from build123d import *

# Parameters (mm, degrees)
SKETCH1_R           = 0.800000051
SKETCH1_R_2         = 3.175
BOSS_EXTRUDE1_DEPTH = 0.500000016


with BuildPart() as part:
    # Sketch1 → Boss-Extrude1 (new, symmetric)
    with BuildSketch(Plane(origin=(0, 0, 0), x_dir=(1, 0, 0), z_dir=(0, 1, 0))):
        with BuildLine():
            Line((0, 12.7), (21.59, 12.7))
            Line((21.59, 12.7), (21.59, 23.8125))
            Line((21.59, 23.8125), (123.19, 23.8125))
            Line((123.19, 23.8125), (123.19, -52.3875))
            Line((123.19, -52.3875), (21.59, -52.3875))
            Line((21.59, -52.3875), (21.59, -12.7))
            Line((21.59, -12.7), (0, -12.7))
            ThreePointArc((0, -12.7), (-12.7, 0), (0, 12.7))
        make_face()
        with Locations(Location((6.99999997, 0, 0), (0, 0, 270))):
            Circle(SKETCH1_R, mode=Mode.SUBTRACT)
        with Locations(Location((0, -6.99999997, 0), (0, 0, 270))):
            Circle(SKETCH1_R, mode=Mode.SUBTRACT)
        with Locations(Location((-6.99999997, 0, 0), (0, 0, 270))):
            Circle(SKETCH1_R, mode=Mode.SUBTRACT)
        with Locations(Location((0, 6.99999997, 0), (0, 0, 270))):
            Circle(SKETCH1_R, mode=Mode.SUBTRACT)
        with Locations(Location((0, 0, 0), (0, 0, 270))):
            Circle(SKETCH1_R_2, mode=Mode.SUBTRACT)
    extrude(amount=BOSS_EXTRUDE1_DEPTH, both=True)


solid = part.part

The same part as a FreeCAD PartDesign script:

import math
import FreeCAD as App
import Part
import Sketcher
Q = App.Units.Quantity

doc = App.newDocument("Part")
body = doc.addObject("PartDesign::Body", "Body")

# Sketch on XZ plane
sketch1 = body.newObject("Sketcher::SketchObject", "Sketch")
sketch1.AttachmentSupport = (doc.getObject("XZ_Plane"), [""])
sketch1.MapMode = "FlatFace"
sketch1.addGeometry([
    Part.LineSegment(App.Vector(21.59, -12.7, 0), App.Vector(0, -12.7, 0)),  # 0
    Part.ArcOfCircle(Part.Circle(App.Vector(0, 0, 0), App.Vector(0, 0, 1), 12.7), math.radians(90), math.radians(270)),  # 1
    Part.LineSegment(App.Vector(0, 12.7, 0), App.Vector(21.59, 12.7, 0)),  # 2
    Part.LineSegment(App.Vector(21.59, 12.7, 0), App.Vector(21.59, 52.3875, 0)),  # 3
    Part.LineSegment(App.Vector(21.59, 52.3875, 0), App.Vector(123.19, 52.3875, 0)),  # 4
    Part.LineSegment(App.Vector(123.19, 52.3875, 0), App.Vector(123.19, -23.8125, 0)),  # 5
    Part.LineSegment(App.Vector(123.19, -23.8125, 0), App.Vector(21.59, -23.8125, 0)),  # 6
    Part.LineSegment(App.Vector(21.59, -23.8125, 0), App.Vector(21.59, -12.7, 0)),  # 7
    Part.Circle(App.Vector(0, 7, 0), App.Vector(0, 0, 1), 0.8),  # 8
    Part.Circle(App.Vector(7, 0, 0), App.Vector(0, 0, 1), 0.8),  # 9
    Part.Circle(App.Vector(0, 0, 0), App.Vector(0, 0, 1), 3.175),  # 10
    Part.Circle(App.Vector(0, -7, 0), App.Vector(0, 0, 1), 0.8),  # 11
    Part.Circle(App.Vector(-7, 0, 0), App.Vector(0, 0, 1), 0.8),  # 12
], False)
sketch1.addConstraint([
    Sketcher.Constraint("Tangent", 0, 2, 1, 2),
    Sketcher.Constraint("Tangent", 1, 1, 2, 1),
    Sketcher.Constraint("Coincident", 2, 2, 3, 1),
    Sketcher.Constraint("Coincident", 3, 2, 4, 1),
    Sketcher.Constraint("Coincident", 4, 2, 5, 1),
    Sketcher.Constraint("Coincident", 5, 2, 6, 1),
    Sketcher.Constraint("Coincident", 6, 2, 7, 1),
    Sketcher.Constraint("Coincident", 7, 2, 0, 1),
    Sketcher.Constraint("Horizontal", 0),
    Sketcher.Constraint("Horizontal", 2),
    Sketcher.Constraint("Vertical", 3),
    Sketcher.Constraint("Horizontal", 4),
    Sketcher.Constraint("Vertical", 5),
    Sketcher.Constraint("Horizontal", 6),
    Sketcher.Constraint("Vertical", 7),
    Sketcher.Constraint("Coincident", 1, 3, -1, 1),
    Sketcher.Constraint("Coincident", 10, 3, -1, 1),
    Sketcher.Constraint("Equal", 8, 9),
    Sketcher.Constraint("Equal", 9, 11),
    Sketcher.Constraint("Equal", 11, 12),
    Sketcher.Constraint("Symmetric", 8, 3, 11, 3, -1, 1),
    Sketcher.Constraint("Symmetric", 9, 3, 12, 3, -1, 1),
    Sketcher.Constraint("PointOnObject", 8, 3, -2),
    Sketcher.Constraint("PointOnObject", 9, 3, -1),
    Sketcher.Constraint("Vertical", 3, 2, 6, 2),
    Sketcher.Constraint("Radius", 1, Q("0.5 in")),
    Sketcher.Constraint("Diameter", 10, Q("0.25 in")),
    Sketcher.Constraint("DistanceX", 4, 1, 4, 2, Q("4 in")),
    Sketcher.Constraint("DistanceY", 5, 2, 5, 1, Q("3 in")),
    Sketcher.Constraint("DistanceX", 0, 2, 0, 1, Q("0.85 in")),
    Sketcher.Constraint("Diameter", 8, 1.6),
    Sketcher.Constraint("DistanceY", 3, 1, 3, 2, Q("1.5625 in")),
    Sketcher.Constraint("DistanceY", -1, 1, 8, 3, 7.0),
    Sketcher.Constraint("DistanceX", -1, 1, 9, 3, 7.0),
])
pad1 = body.newObject("PartDesign::Pad", "Pad")
pad1.Profile = sketch1
pad1.Length = 1
pad1.Midplane = True

doc.recompute()
